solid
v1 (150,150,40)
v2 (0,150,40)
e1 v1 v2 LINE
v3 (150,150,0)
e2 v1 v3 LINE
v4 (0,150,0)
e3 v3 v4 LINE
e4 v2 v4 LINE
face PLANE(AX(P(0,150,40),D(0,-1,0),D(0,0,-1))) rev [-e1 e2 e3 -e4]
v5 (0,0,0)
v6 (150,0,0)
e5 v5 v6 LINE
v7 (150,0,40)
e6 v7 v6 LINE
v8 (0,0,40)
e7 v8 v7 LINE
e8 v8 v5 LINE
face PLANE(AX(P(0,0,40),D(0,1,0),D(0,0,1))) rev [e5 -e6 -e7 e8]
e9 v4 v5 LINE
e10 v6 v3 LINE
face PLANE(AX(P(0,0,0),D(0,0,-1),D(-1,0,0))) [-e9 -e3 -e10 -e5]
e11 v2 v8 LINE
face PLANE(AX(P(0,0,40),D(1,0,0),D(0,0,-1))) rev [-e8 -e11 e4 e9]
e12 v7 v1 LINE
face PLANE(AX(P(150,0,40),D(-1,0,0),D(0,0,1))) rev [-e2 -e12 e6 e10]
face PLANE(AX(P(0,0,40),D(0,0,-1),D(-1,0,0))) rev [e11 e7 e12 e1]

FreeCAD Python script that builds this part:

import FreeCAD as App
import Part
import Sketcher

V = App.Vector

doc = App.newDocument("Part")
body = doc.addObject("PartDesign::Body", "Body")

# Sketch on XY plane
sketch1 = doc.addObject("Sketcher::SketchObject", "Sketch")
body.addObject(sketch1)
sketch1.AttachmentSupport = (doc.XY_Plane, [""])
sketch1.MapMode = "FlatFace"
sketch1.addGeometry(Part.LineSegment(V(0, 150, 0), V(0, 0, 0)), False)
sketch1.addGeometry(Part.LineSegment(V(0, 0, 0), V(150, 0, 0)), False)
sketch1.addGeometry(Part.LineSegment(V(150, 0, 0), V(150, 150, 0)), False)
sketch1.addGeometry(Part.LineSegment(V(150, 150, 0), V(0, 150, 0)), False)
sketch1.addConstraint(Sketcher.Constraint("Coincident", 0, 2, 1, 1))
sketch1.addConstraint(Sketcher.Constraint("Coincident", 1, 2, 2, 1))
sketch1.addConstraint(Sketcher.Constraint("Coincident", 2, 2, 3, 1))
sketch1.addConstraint(Sketcher.Constraint("Coincident", 3, 2, 0, 1))
sketch1.addConstraint(Sketcher.Constraint("Vertical", 0))
sketch1.addConstraint(Sketcher.Constraint("Horizontal", 1))
sketch1.addConstraint(Sketcher.Constraint("Vertical", 2))
sketch1.addConstraint(Sketcher.Constraint("Horizontal", 3))
sketch1.addConstraint(Sketcher.Constraint("Coincident", 0, 2, -1, 1))
sketch1.addConstraint(Sketcher.Constraint("Equal", 3, 0))
sketch1.addConstraint(Sketcher.Constraint("DistanceX", 1, 1, 1, 2, 150.0))
pad1 = doc.addObject("PartDesign::Pad", "Pad")
body.addObject(pad1)
pad1.Profile = sketch1
pad1.Length = 40

doc.recompute()
